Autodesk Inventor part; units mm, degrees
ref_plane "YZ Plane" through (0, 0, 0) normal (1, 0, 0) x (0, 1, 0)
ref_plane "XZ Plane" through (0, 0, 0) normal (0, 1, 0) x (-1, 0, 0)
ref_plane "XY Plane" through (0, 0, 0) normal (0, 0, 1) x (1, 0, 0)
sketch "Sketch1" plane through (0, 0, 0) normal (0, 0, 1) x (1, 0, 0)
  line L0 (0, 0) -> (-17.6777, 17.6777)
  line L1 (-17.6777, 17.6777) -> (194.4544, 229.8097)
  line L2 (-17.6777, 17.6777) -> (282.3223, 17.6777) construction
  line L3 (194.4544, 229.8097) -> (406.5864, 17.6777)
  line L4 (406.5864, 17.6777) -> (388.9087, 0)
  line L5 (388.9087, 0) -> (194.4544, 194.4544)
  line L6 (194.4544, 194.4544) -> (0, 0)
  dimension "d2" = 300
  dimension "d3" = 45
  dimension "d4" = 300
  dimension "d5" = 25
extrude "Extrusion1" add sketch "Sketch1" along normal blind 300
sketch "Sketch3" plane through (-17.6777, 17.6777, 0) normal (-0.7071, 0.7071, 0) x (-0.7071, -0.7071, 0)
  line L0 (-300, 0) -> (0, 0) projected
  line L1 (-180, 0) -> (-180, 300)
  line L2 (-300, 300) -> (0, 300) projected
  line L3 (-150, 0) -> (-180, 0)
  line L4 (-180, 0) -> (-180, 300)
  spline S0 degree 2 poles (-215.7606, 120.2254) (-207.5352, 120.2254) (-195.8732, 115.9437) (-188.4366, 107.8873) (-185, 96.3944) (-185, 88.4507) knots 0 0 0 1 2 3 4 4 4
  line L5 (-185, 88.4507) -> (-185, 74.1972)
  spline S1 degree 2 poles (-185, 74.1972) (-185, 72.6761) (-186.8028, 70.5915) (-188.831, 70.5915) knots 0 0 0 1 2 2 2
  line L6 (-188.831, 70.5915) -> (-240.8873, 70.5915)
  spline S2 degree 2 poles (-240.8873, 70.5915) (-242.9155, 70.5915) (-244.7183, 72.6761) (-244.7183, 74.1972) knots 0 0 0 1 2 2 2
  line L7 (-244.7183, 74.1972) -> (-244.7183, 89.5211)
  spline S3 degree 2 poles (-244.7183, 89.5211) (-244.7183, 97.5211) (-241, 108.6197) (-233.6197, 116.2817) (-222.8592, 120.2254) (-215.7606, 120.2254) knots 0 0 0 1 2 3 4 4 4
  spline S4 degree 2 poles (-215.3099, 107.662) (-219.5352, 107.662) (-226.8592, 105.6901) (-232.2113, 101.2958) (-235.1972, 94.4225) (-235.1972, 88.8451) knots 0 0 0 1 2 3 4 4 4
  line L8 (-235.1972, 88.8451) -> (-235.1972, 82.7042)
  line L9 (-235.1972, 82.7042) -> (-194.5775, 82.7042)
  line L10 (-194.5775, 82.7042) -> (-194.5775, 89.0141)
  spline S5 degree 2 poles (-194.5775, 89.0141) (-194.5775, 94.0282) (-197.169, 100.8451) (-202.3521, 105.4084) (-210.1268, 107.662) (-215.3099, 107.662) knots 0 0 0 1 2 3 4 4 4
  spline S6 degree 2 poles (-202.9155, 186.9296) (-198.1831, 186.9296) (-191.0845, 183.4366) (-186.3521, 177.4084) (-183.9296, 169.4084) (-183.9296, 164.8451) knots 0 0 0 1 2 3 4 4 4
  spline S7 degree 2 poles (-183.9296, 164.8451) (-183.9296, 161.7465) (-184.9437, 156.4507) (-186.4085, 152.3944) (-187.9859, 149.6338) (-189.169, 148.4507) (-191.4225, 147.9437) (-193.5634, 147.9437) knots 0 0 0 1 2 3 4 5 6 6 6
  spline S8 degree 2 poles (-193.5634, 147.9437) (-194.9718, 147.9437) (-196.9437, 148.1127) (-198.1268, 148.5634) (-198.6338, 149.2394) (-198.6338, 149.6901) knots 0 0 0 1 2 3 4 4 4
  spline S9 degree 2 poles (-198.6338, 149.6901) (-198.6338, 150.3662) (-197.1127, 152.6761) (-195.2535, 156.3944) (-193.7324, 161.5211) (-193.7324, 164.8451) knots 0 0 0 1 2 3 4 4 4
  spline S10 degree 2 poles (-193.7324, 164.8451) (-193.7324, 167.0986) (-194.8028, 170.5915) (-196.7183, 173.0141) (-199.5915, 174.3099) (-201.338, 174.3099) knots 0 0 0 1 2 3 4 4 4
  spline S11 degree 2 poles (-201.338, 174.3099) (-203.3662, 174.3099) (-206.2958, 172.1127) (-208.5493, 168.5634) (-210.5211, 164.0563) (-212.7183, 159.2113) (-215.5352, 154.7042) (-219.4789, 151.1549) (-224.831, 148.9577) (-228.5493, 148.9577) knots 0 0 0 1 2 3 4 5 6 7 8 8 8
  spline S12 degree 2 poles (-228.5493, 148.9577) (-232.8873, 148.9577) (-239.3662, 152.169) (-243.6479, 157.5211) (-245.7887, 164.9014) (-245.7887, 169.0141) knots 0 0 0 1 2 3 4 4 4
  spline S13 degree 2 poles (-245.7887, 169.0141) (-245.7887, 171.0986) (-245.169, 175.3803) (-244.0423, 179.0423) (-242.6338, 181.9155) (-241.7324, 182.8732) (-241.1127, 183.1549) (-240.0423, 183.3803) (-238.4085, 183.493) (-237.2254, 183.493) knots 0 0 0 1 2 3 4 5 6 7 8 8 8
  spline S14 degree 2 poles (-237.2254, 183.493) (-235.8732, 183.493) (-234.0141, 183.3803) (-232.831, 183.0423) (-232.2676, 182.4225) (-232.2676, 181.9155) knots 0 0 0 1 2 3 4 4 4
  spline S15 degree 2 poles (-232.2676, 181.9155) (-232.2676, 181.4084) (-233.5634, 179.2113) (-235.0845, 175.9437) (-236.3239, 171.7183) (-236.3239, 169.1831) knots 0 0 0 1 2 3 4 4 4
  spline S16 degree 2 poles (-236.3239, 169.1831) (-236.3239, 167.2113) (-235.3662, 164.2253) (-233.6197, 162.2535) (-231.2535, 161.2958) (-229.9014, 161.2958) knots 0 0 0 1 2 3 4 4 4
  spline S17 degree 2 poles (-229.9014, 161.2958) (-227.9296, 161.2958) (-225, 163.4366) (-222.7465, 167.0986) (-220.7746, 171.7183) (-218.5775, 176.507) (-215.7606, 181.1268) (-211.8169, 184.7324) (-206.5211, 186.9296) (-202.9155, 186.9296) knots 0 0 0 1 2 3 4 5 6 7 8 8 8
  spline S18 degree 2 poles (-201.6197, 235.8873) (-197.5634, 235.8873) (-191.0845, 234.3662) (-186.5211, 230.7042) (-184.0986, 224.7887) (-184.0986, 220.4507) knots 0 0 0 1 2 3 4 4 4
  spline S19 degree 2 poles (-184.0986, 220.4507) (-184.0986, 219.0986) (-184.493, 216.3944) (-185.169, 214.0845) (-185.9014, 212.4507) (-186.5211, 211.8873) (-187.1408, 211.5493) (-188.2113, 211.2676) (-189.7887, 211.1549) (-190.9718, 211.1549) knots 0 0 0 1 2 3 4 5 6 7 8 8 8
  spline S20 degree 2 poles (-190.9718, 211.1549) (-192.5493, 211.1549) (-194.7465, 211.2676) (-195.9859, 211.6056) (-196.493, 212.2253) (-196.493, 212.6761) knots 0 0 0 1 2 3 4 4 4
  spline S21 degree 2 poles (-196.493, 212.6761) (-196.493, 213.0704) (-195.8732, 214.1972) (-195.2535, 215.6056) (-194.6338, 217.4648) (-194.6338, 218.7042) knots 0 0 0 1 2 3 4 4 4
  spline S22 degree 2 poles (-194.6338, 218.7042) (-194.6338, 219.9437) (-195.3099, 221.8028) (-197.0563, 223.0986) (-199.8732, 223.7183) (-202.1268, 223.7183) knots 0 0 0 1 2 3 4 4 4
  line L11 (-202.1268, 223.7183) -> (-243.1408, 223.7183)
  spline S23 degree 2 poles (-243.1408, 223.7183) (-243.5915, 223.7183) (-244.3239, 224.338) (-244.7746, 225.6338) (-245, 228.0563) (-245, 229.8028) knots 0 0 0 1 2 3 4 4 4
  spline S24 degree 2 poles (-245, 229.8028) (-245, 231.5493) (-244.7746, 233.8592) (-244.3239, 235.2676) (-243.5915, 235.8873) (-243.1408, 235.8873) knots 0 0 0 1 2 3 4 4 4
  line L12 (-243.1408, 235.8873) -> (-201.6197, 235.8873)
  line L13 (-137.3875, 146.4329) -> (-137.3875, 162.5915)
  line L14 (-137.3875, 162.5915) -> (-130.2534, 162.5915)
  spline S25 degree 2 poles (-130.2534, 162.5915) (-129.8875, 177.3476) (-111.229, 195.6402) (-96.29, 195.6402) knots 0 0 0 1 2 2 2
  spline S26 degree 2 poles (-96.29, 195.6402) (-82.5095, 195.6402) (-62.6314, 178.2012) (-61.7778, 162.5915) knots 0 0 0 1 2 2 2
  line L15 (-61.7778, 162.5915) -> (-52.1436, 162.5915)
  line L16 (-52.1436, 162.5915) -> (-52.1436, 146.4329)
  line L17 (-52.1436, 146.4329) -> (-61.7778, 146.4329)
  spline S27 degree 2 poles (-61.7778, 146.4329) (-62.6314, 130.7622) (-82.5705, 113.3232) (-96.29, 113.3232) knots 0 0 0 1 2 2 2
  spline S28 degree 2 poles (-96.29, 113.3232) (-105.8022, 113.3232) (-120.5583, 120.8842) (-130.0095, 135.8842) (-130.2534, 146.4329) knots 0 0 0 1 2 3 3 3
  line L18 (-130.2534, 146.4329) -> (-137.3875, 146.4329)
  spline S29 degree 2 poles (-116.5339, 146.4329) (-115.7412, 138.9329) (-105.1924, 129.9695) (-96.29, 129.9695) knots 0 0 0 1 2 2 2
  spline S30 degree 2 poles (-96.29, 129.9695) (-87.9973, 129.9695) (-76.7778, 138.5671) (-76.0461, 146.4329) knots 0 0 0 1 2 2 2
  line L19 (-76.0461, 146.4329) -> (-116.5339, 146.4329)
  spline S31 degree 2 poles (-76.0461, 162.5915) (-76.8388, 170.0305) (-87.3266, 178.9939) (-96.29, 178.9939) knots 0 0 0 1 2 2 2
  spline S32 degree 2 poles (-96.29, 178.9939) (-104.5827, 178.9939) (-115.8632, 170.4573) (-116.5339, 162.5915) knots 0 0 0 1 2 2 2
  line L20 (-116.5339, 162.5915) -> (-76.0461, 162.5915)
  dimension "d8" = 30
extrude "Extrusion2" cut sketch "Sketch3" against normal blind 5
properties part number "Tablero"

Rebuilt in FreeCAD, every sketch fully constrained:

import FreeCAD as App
import Part
import Sketcher
from FreeCAD import Vector
Q = App.Units.Quantity

doc = App.newDocument("Part")
params = doc.addObject("Spreadsheet::Sheet", "Params")
for row, (alias, value) in enumerate([
    ("sketch1_length", "25 mm"),
    ("sketch1_length2", "300 mm"),
    ("pad1_length", "300 mm"),
    ("sketch2_height", "6.31 mm"),
    ("pocket1_length", "5 mm"),
], start=1):
    params.set(f"A{row}", alias)
    params.set(f"B{row}", "=" + value)
    params.setAlias(f"B{row}", alias)

body = doc.addObject("PartDesign::Body", "Body")

# Sketch on XY plane
sketch1 = body.newObject("Sketcher::SketchObject", "Sketch")
sketch1.AttachmentSupport = (doc.getObject("XY_Plane"), [""])
sketch1.MapMode = "FlatFace"
sketch1.addGeometry(Part.LineSegment(Vector(-18, 18, 0), Vector(0, 0, 0)), False)
sketch1.addGeometry(Part.LineSegment(Vector(0, 0, 0), Vector(194, 194, 0)), False)
sketch1.addGeometry(Part.LineSegment(Vector(194, 194, 0), Vector(389, 0, 0)), False)
sketch1.addGeometry(Part.LineSegment(Vector(389, 0, 0), Vector(407, 18, 0)), False)
sketch1.addGeometry(Part.LineSegment(Vector(407, 18, 0), Vector(194, 230, 0)), False)
sketch1.addGeometry(Part.LineSegment(Vector(194, 230, 0), Vector(-18, 18, 0)), False)
sketch1.addConstraint(Sketcher.Constraint("Coincident", 0, 2, 1, 1))
sketch1.addConstraint(Sketcher.Constraint("Coincident", 1, 2, 2, 1))
sketch1.addConstraint(Sketcher.Constraint("Coincident", 2, 2, 3, 1))
sketch1.addConstraint(Sketcher.Constraint("Coincident", 3, 2, 4, 1))
sketch1.addConstraint(Sketcher.Constraint("Coincident", 4, 2, 5, 1))
sketch1.addConstraint(Sketcher.Constraint("Coincident", 5, 2, 0, 1))
sketch1.addConstraint(Sketcher.Constraint("Coincident", 0, 2, -1, 1))
sketch1.addConstraint(Sketcher.Constraint("PointOnObject", 2, 2, -1))
sketch1.addConstraint(Sketcher.Constraint("Perpendicular", 0, 1))
sketch1.addConstraint(Sketcher.Constraint("Perpendicular", 1, 2))
sketch1.addConstraint(Sketcher.Constraint("Perpendicular", 2, 3))
sketch1.addConstraint(Sketcher.Constraint("Perpendicular", 3, 4))
sketch1.addConstraint(Sketcher.Constraint("Perpendicular", 4, 5))
sketch1.addConstraint(Sketcher.Constraint("Horizontal", 3, 2, 5, 2))
sketch1.addConstraint(Sketcher.Constraint("Vertical", 1, 2, 4, 2))
sketch1.addConstraint(Sketcher.Constraint("Distance", 0, Q("25 mm")))
sketch1.addConstraint(Sketcher.Constraint("Distance", 4, Q("300 mm")))
sketch1.setExpression("Constraints[15]", "Params.sketch1_length")
sketch1.setExpression("Constraints[16]", "Params.sketch1_length2")
pad1 = body.newObject("PartDesign::Pad", "Pad")
pad1.Profile = sketch1
pad1.setExpression("Length", "Params.pad1_length")

# Sketch on an angled plane
sketch2 = body.newObject("Sketcher::SketchObject", "Sketch001")
sketch2.Placement = App.Placement(Vector(-17.6777, 17.6777, 0), App.Rotation(Vector(-0.707106781, -0.707106781, 0), Vector(0, 0, 0.999999999), Vector(-0.707106781, 0.707106781, 0), "ZXY"))
sketch2.addGeometry(Part.BSplineCurve([Vector(-215.7606, 120.2254, 0), Vector(-207.5352, 120.2254, 0), Vector(-195.8732, 115.9437, 0), Vector(-188.4366, 107.8873, 0), Vector(-185, 96.3944, 0), Vector(-185, 88.4507, 0)], [3, 1, 1, 1, 3], [0, 1, 2, 3, 4], False, 2, [1, 1, 1, 1, 1, 1], False), False)
sketch2.addGeometry(Part.BSplineCurve([Vector(-244.7183, 89.5211, 0), Vector(-244.7183, 97.5211, 0), Vector(-241, 108.6197, 0), Vector(-233.6197, 116.2817, 0), Vector(-222.8592, 120.2254, 0), Vector(-215.7606, 120.2254, 0)], [3, 1, 1, 1, 3], [0, 1, 2, 3, 4], False, 2, [1, 1, 1, 1, 1, 1], False), False)
sketch2.addGeometry(Part.LineSegment(Vector(-244.7183, 89.5211, 0), Vector(-244.7183, 74.1972, 0)), False)
sketch2.addGeometry(Part.BSplineCurve([Vector(-240.8873, 70.5915, 0), Vector(-242.9155, 70.5915, 0), Vector(-244.7183, 72.6761, 0), Vector(-244.7183, 74.1972, 0)], [3, 1, 3], [0, 1, 2], False, 2, [1, 1, 1, 1], False), False)
sketch2.addGeometry(Part.LineSegment(Vector(-240.8873, 70.5915, 0), Vector(-188.831, 70.5915, 0)), False)
sketch2.addGeometry(Part.BSplineCurve([Vector(-185, 74.1972, 0), Vector(-185, 72.6761, 0), Vector(-186.8028, 70.5915, 0), Vector(-188.831, 70.5915, 0)], [3, 1, 3], [0, 1, 2], False, 2, [1, 1, 1, 1], False), False)
sketch2.addGeometry(Part.LineSegment(Vector(-185, 74.1972, 0), Vector(-185, 88.4507, 0)), False)
sketch2.addGeometry(Part.BSplineCurve([Vector(-215.3099, 107.662, 0), Vector(-219.5352, 107.662, 0), Vector(-226.8592, 105.6901, 0), Vector(-232.2113, 101.2958, 0), Vector(-235.1972, 94.4225, 0), Vector(-235.1972, 88.8451, 0)], [3, 1, 1, 1, 3], [0, 1, 2, 3, 4], False, 2, [1, 1, 1, 1, 1, 1], False), False)
sketch2.addGeometry(Part.BSplineCurve([Vector(-194.5775, 89.0141, 0), Vector(-194.5775, 94.0282, 0), Vector(-197.169, 100.8451, 0), Vector(-202.3521, 105.4084, 0), Vector(-210.1268, 107.662, 0), Vector(-215.3099, 107.662, 0)], [3, 1, 1, 1, 3], [0, 1, 2, 3, 4], False, 2, [1, 1, 1, 1, 1, 1], False), False)
sketch2.addGeometry(Part.LineSegment(Vector(-194.5775, 89.0141, 0), Vector(-194.5775, 82.7042, 0)), False)
sketch2.addGeometry(Part.LineSegment(Vector(-194.5775, 82.7042, 0), Vector(-235.1972, 82.7042, 0)), False)
sketch2.addGeometry(Part.LineSegment(Vector(-235.1972, 82.7042, 0), Vector(-235.1972, 88.8451, 0)), False)
sketch2.addGeometry(Part.BSplineCurve([Vector(-202.9155, 186.9296, 0), Vector(-198.1831, 186.9296, 0), Vector(-191.0845, 183.4366, 0), Vector(-186.3521, 177.4084, 0), Vector(-183.9296, 169.4084, 0), Vector(-183.9296, 164.8451, 0)], [3, 1, 1, 1, 3], [0, 1, 2, 3, 4], False, 2, [1, 1, 1, 1, 1, 1], False), False)
sketch2.addGeometry(Part.BSplineCurve([Vector(-229.9014, 161.2958, 0), Vector(-227.9296, 161.2958, 0), Vector(-225, 163.4366, 0), Vector(-222.7465, 167.0986, 0), Vector(-220.7746, 171.7183, 0), Vector(-218.5775, 176.507, 0), Vector(-215.7606, 181.1268, 0), Vector(-211.8169, 184.7324, 0), Vector(-206.5211, 186.9296, 0), Vector(-202.9155, 186.9296, 0)], [3, 1, 1, 1, 1, 1, 1, 1, 3], [0, 1, 2, 3, 4, 5, 6, 7, 8], False, 2, [1, 1, 1, 1, 1, 1, 1, 1, 1, 1], False), False)
sketch2.addGeometry(Part.BSplineCurve([Vector(-236.3239, 169.1831, 0), Vector(-236.3239, 167.2113, 0), Vector(-235.3662, 164.2253, 0), Vector(-233.6197, 162.2535, 0), Vector(-231.2535, 161.2958, 0), Vector(-229.9014, 161.2958, 0)], [3, 1, 1, 1, 3], [0, 1, 2, 3, 4], False, 2, [1, 1, 1, 1, 1, 1], False), False)
sketch2.addGeometry(Part.BSplineCurve([Vector(-232.2676, 181.9155, 0), Vector(-232.2676, 181.4084, 0), Vector(-233.5634, 179.2113, 0), Vector(-235.0845, 175.9437, 0), Vector(-236.3239, 171.7183, 0), Vector(-236.3239, 169.1831, 0)], [3, 1, 1, 1, 3], [0, 1, 2, 3, 4], False, 2, [1, 1, 1, 1, 1, 1], False), False)
sketch2.addGeometry(Part.BSplineCurve([Vector(-237.2254, 183.493, 0), Vector(-235.8732, 183.493, 0), Vector(-234.0141, 183.3803, 0), Vector(-232.831, 183.0423, 0), Vector(-232.2676, 182.4225, 0), Vector(-232.2676, 181.9155, 0)], [3, 1, 1, 1, 3], [0, 1, 2, 3, 4], False, 2, [1, 1, 1, 1, 1, 1], False), False)
sketch2.addGeometry(Part.BSplineCurve([Vector(-245.7887, 169.0141, 0), Vector(-245.7887, 171.0986, 0), Vector(-245.169, 175.3803, 0), Vector(-244.0423, 179.0423, 0), Vector(-242.6338, 181.9155, 0), Vector(-241.7324, 182.8732, 0), Vector(-241.1127, 183.1549, 0), Vector(-240.0423, 183.3803, 0), Vector(-238.4085, 183.493, 0), Vector(-237.2254, 183.493, 0)], [3, 1, 1, 1, 1, 1, 1, 1, 3], [0, 1, 2, 3, 4, 5, 6, 7, 8], False, 2, [1, 1, 1, 1, 1, 1, 1, 1, 1, 1], False), False)
sketch2.addGeometry(Part.BSplineCurve([Vector(-228.5493, 148.9577, 0), Vector(-232.8873, 148.9577, 0), Vector(-239.3662, 152.169, 0), Vector(-243.6479, 157.5211, 0), Vector(-245.7887, 164.9014, 0), Vector(-245.7887, 169.0141, 0)], [3, 1, 1, 1, 3], [0, 1, 2, 3, 4], False, 2, [1, 1, 1, 1, 1, 1], False), False)
sketch2.addGeometry(Part.BSplineCurve([Vector(-201.338, 174.3099, 0), Vector(-203.3662, 174.3099, 0), Vector(-206.2958, 172.1127, 0), Vector(-208.5493, 168.5634, 0), Vector(-210.5211, 164.0563, 0), Vector(-212.7183, 159.2113, 0), Vector(-215.5352, 154.7042, 0), Vector(-219.4789, 151.1549, 0), Vector(-224.831, 148.9577, 0), Vector(-228.5493, 148.9577, 0)], [3, 1, 1, 1, 1, 1, 1, 1, 3], [0, 1, 2, 3, 4, 5, 6, 7, 8], False, 2, [1, 1, 1, 1, 1, 1, 1, 1, 1, 1], False), False)
sketch2.addGeometry(Part.BSplineCurve([Vector(-193.7324, 164.8451, 0), Vector(-193.7324, 167.0986, 0), Vector(-194.8028, 170.5915, 0), Vector(-196.7183, 173.0141, 0), Vector(-199.5915, 174.3099, 0), Vector(-201.338, 174.3099, 0)], [3, 1, 1, 1, 3], [0, 1, 2, 3, 4], False, 2, [1, 1, 1, 1, 1, 1], False), False)
sketch2.addGeometry(Part.BSplineCurve([Vector(-198.6338, 149.6901, 0), Vector(-198.6338, 150.3662, 0), Vector(-197.1127, 152.6761, 0), Vector(-195.2535, 156.3944, 0), Vector(-193.7324, 161.5211, 0), Vector(-193.7324, 164.8451, 0)], [3, 1, 1, 1, 3], [0, 1, 2, 3, 4], False, 2, [1, 1, 1, 1, 1, 1], False), False)
sketch2.addGeometry(Part.BSplineCurve([Vector(-193.5634, 147.9437, 0), Vector(-194.9718, 147.9437, 0), Vector(-196.9437, 148.1127, 0), Vector(-198.1268, 148.5634, 0), Vector(-198.6338, 149.2394, 0), Vector(-198.6338, 149.6901, 0)], [3, 1, 1, 1, 3], [0, 1, 2, 3, 4], False, 2, [1, 1, 1, 1, 1, 1], False), False)
sketch2.addGeometry(Part.BSplineCurve([Vector(-183.9296, 164.8451, 0), Vector(-183.9296, 161.7465, 0), Vector(-184.9437, 156.4507, 0), Vector(-186.4085, 152.3944, 0), Vector(-187.9859, 149.6338, 0), Vector(-189.169, 148.4507, 0), Vector(-191.4225, 147.9437, 0), Vector(-193.5634, 147.9437, 0)], [3, 1, 1, 1, 1, 1, 3], [0, 1, 2, 3, 4, 5, 6], False, 2, [1, 1, 1, 1, 1, 1, 1, 1], False), False)
sketch2.addGeometry(Part.BSplineCurve([Vector(-201.6197, 235.8873, 0), Vector(-197.5634, 235.8873, 0), Vector(-191.0845, 234.3662, 0), Vector(-186.5211, 230.7042, 0), Vector(-184.0986, 224.7887, 0), Vector(-184.0986, 220.4507, 0)], [3, 1, 1, 1, 3], [0, 1, 2, 3, 4], False, 2, [1, 1, 1, 1, 1, 1], False), False)
sketch2.addGeometry(Part.LineSegment(Vector(-201.6197, 235.8873, 0), Vector(-243.1408, 235.8873, 0)), False)
sketch2.addGeometry(Part.BSplineCurve([Vector(-245, 229.8028, 0), Vector(-245, 231.5493, 0), Vector(-244.7746, 233.8592, 0), Vector(-244.3239, 235.2676, 0), Vector(-243.5915, 235.8873, 0), Vector(-243.1408, 235.8873, 0)], [3, 1, 1, 1, 3], [0, 1, 2, 3, 4], False, 2, [1, 1, 1, 1, 1, 1], False), False)
sketch2.addGeometry(Part.BSplineCurve([Vector(-243.1408, 223.7183, 0), Vector(-243.5915, 223.7183, 0), Vector(-244.3239, 224.338, 0), Vector(-244.7746, 225.6338, 0), Vector(-245, 228.0563, 0), Vector(-245, 229.8028, 0)], [3, 1, 1, 1, 3], [0, 1, 2, 3, 4], False, 2, [1, 1, 1, 1, 1, 1], False), False)
sketch2.addGeometry(Part.LineSegment(Vector(-243.1408, 223.7183, 0), Vector(-202.1268, 223.7183, 0)), False)
sketch2.addGeometry(Part.BSplineCurve([Vector(-194.6338, 218.7042, 0), Vector(-194.6338, 219.9437, 0), Vector(-195.3099, 221.8028, 0), Vector(-197.0563, 223.0986, 0), Vector(-199.8732, 223.7183, 0), Vector(-202.1268, 223.7183, 0)], [3, 1, 1, 1, 3], [0, 1, 2, 3, 4], False, 2, [1, 1, 1, 1, 1, 1], False), False)
sketch2.addGeometry(Part.BSplineCurve([Vector(-196.493, 212.6761, 0), Vector(-196.493, 213.0704, 0), Vector(-195.8732, 214.1972, 0), Vector(-195.2535, 215.6056, 0), Vector(-194.6338, 217.4648, 0), Vector(-194.6338, 218.7042, 0)], [3, 1, 1, 1, 3], [0, 1, 2, 3, 4], False, 2, [1, 1, 1, 1, 1, 1], False), False)
sketch2.addGeometry(Part.BSplineCurve([Vector(-190.9718, 211.1549, 0), Vector(-192.5493, 211.1549, 0), Vector(-194.7465, 211.2676, 0), Vector(-195.9859, 211.6056, 0), Vector(-196.493, 212.2253, 0), Vector(-196.493, 212.6761, 0)], [3, 1, 1, 1, 3], [0, 1, 2, 3, 4], False, 2, [1, 1, 1, 1, 1, 1], False), False)
sketch2.addGeometry(Part.BSplineCurve([Vector(-184.0986, 220.4507, 0), Vector(-184.0986, 219.0986, 0), Vector(-184.493, 216.3944, 0), Vector(-185.169, 214.0845, 0), Vector(-185.9014, 212.4507, 0), Vector(-186.5211, 211.8873, 0), Vector(-187.1408, 211.5493, 0), Vector(-188.2113, 211.2676, 0), Vector(-189.7887, 211.1549, 0), Vector(-190.9718, 211.1549, 0)], [3, 1, 1, 1, 1, 1, 1, 1, 3], [0, 1, 2, 3, 4, 5, 6, 7, 8], False, 2, [1, 1, 1, 1, 1, 1, 1, 1, 1, 1], False), False)
sketch2.addGeometry(Part.LineSegment(Vector(-137.3875, 162.5915, 0), Vector(-137.3875, 146.4329, 0)), False)
sketch2.addGeometry(Part.LineSegment(Vector(-137.3875, 146.4329, 0), Vector(-130.2534, 146.4329, 0)), False)
sketch2.addGeometry(Part.BSplineCurve([Vector(-96.29, 113.3232, 0), Vector(-105.8022, 113.3232, 0), Vector(-120.5583, 120.8842, 0), Vector(-130.0095, 135.8842, 0), Vector(-130.2534, 146.4329, 0)], [3, 1, 1, 3], [0, 1, 2, 3], False, 2, [1, 1, 1, 1, 1], False), False)
sketch2.addGeometry(Part.BSplineCurve([Vector(-61.7778, 146.4329, 0), Vector(-62.6314, 130.7622, 0), Vector(-82.5705, 113.3232, 0), Vector(-96.29, 113.3232, 0)], [3, 1, 3], [0, 1, 2], False, 2, [1, 1, 1, 1], False), False)
sketch2.addGeometry(Part.LineSegment(Vector(-61.7778, 146.4329, 0), Vector(-52.1436, 146.4329, 0)), False)
sketch2.addGeometry(Part.LineSegment(Vector(-52.1436, 146.4329, 0), Vector(-52.1436, 162.5915, 0)), False)
sketch2.addGeometry(Part.LineSegment(Vector(-52.1436, 162.5915, 0), Vector(-61.7778, 162.5915, 0)), False)
sketch2.addGeometry(Part.BSplineCurve([Vector(-96.29, 195.6402, 0), Vector(-82.5095, 195.6402, 0), Vector(-62.6314, 178.2012, 0), Vector(-61.7778, 162.5915, 0)], [3, 1, 3], [0, 1, 2], False, 2, [1, 1, 1, 1], False), False)
sketch2.addGeometry(Part.BSplineCurve([Vector(-130.2534, 162.5915, 0), Vector(-129.8875, 177.3476, 0), Vector(-111.229, 195.6402, 0), Vector(-96.29, 195.6402, 0)], [3, 1, 3], [0, 1, 2], False, 2, [1, 1, 1, 1], False), False)
sketch2.addGeometry(Part.LineSegment(Vector(-130.2534, 162.5915, 0), Vector(-137.3875, 162.5915, 0)), False)
sketch2.addGeometry(Part.BSplineCurve([Vector(-116.5339, 146.4329, 0), Vector(-115.7412, 138.9329, 0), Vector(-105.1924, 129.9695, 0), Vector(-96.29, 129.9695, 0)], [3, 1, 3], [0, 1, 2], False, 2, [1, 1, 1, 1], False), False)
sketch2.addGeometry(Part.LineSegment(Vector(-116.5339, 146.4329, 0), Vector(-76.0461, 146.4329, 0)), False)
sketch2.addGeometry(Part.BSplineCurve([Vector(-96.29, 129.9695, 0), Vector(-87.9973, 129.9695, 0), Vector(-76.7778, 138.5671, 0), Vector(-76.0461, 146.4329, 0)], [3, 1, 3], [0, 1, 2], False, 2, [1, 1, 1, 1], False), False)
sketch2.addGeometry(Part.BSplineCurve([Vector(-76.0461, 162.5915, 0), Vector(-76.8388, 170.0305, 0), Vector(-87.3266, 178.9939, 0), Vector(-96.29, 178.9939, 0)], [3, 1, 3], [0, 1, 2], False, 2, [1, 1, 1, 1], False), False)
sketch2.addGeometry(Part.LineSegment(Vector(-76.0461, 162.5915, 0), Vector(-116.5339, 162.5915, 0)), False)
sketch2.addGeometry(Part.BSplineCurve([Vector(-96.29, 178.9939, 0), Vector(-104.5827, 178.9939, 0), Vector(-115.8632, 170.4573, 0), Vector(-116.5339, 162.5915, 0)], [3, 1, 3], [0, 1, 2], False, 2, [1, 1, 1, 1], False), False)
sketch2.addConstraint(Sketcher.Constraint("Block", 0))
sketch2.addConstraint(Sketcher.Constraint("Block", 1))
sketch2.addConstraint(Sketcher.Constraint("Block", 3))
sketch2.addConstraint(Sketcher.Constraint("Block", 5))
sketch2.addConstraint(Sketcher.Constraint("Block", 7))
sketch2.addConstraint(Sketcher.Constraint("Block", 8))
sketch2.addConstraint(Sketcher.Constraint("Block", 12))
sketch2.addConstraint(Sketcher.Constraint("Block", 13))
sketch2.addConstraint(Sketcher.Constraint("Block", 14))
sketch2.addConstraint(Sketcher.Constraint("Block", 15))
sketch2.addConstraint(Sketcher.Constraint("Block", 16))
sketch2.addConstraint(Sketcher.Constraint("Block", 17))
sketch2.addConstraint(Sketcher.Constraint("Block", 18))
sketch2.addConstraint(Sketcher.Constraint("Block", 19))
sketch2.addConstraint(Sketcher.Constraint("Block", 20))
sketch2.addConstraint(Sketcher.Constraint("Block", 21))
sketch2.addConstraint(Sketcher.Constraint("Block", 22))
sketch2.addConstraint(Sketcher.Constraint("Block", 23))
sketch2.addConstraint(Sketcher.Constraint("Block", 24))
sketch2.addConstraint(Sketcher.Constraint("Block", 26))
sketch2.addConstraint(Sketcher.Constraint("Block", 27))
sketch2.addConstraint(Sketcher.Constraint("Block", 29))
sketch2.addConstraint(Sketcher.Constraint("Block", 30))
sketch2.addConstraint(Sketcher.Constraint("Block", 31))
sketch2.addConstraint(Sketcher.Constraint("Block", 32))
sketch2.addConstraint(Sketcher.Constraint("Block", 35))
sketch2.addConstraint(Sketcher.Constraint("Block", 36))
sketch2.addConstraint(Sketcher.Constraint("Block", 40))
sketch2.addConstraint(Sketcher.Constraint("Block", 41))
sketch2.addConstraint(Sketcher.Constraint("Block", 43))
sketch2.addConstraint(Sketcher.Constraint("Block", 45))
sketch2.addConstraint(Sketcher.Constraint("Block", 46))
sketch2.addConstraint(Sketcher.Constraint("Block", 48))
sketch2.addConstraint(Sketcher.Constraint("Coincident", 1, 1, 2, 1))
sketch2.addConstraint(Sketcher.Constraint("Coincident", 2, 2, 3, 2))
sketch2.addConstraint(Sketcher.Constraint("Coincident", 3, 1, 4, 1))
sketch2.addConstraint(Sketcher.Constraint("Coincident", 4, 2, 5, 2))
sketch2.addConstraint(Sketcher.Constraint("Coincident", 5, 1, 6, 1))
sketch2.addConstraint(Sketcher.Constraint("Coincident", 6, 2, 0, 2))
sketch2.addConstraint(Sketcher.Constraint("Coincident", 8, 1, 9, 1))
sketch2.addConstraint(Sketcher.Constraint("Coincident", 9, 2, 10, 1))
sketch2.addConstraint(Sketcher.Constraint("Coincident", 10, 2, 11, 1))
sketch2.addConstraint(Sketcher.Constraint("Coincident", 11, 2, 7, 2))
sketch2.addConstraint(Sketcher.Constraint("Coincident", 24, 1, 25, 1))
sketch2.addConstraint(Sketcher.Constraint("Coincident", 25, 2, 26, 2))
sketch2.addConstraint(Sketcher.Constraint("Coincident", 27, 1, 28, 1))
sketch2.addConstraint(Sketcher.Constraint("Coincident", 28, 2, 29, 2))
sketch2.addConstraint(Sketcher.Constraint("Coincident", 33, 2, 34, 1))
sketch2.addConstraint(Sketcher.Constraint("Coincident", 34, 2, 35, 2))
sketch2.addConstraint(Sketcher.Constraint("Coincident", 36, 1, 37, 1))
sketch2.addConstraint(Sketcher.Constraint("Coincident", 37, 2, 38, 1))
sketch2.addConstraint(Sketcher.Constraint("Coincident", 38, 2, 39, 1))
sketch2.addConstraint(Sketcher.Constraint("Coincident", 39, 2, 40, 2))
sketch2.addConstraint(Sketcher.Constraint("Coincident", 41, 1, 42, 1))
sketch2.addConstraint(Sketcher.Constraint("Coincident", 42, 2, 33, 1))
sketch2.addConstraint(Sketcher.Constraint("Coincident", 43, 1, 44, 1))
sketch2.addConstraint(Sketcher.Constraint("Coincident", 44, 2, 45, 2))
sketch2.addConstraint(Sketcher.Constraint("Coincident", 46, 1, 47, 1))
sketch2.addConstraint(Sketcher.Constraint("Coincident", 47, 2, 48, 2))
sketch2.addConstraint(Sketcher.Constraint("Vertical", 9))
sketch2.addConstraint(Sketcher.Constraint("Horizontal", 10))
sketch2.addConstraint(Sketcher.Constraint("Vertical", 11))
sketch2.addConstraint(Sketcher.Constraint("Vertical", 33))
sketch2.addConstraint(Sketcher.Constraint("Horizontal", 34))
sketch2.addConstraint(Sketcher.Constraint("Horizontal", 37))
sketch2.addConstraint(Sketcher.Constraint("Vertical", 38))
sketch2.addConstraint(Sketcher.Constraint("Horizontal", 39))
sketch2.addConstraint(Sketcher.Constraint("Horizontal", 42))
sketch2.addConstraint(Sketcher.Constraint("DistanceY", 9, 2, 9, 1, Q("6.31 mm")))
sketch2.addConstraint(Sketcher.Constraint("DistanceX", 34, 1, 34, 2, Q("7.134 mm")))
sketch2.addConstraint(Sketcher.Constraint("DistanceX", 37, 1, 37, 2, Q("9.6342 mm")))
sketch2.setExpression("Constraints[68]", "Params.sketch2_height")
pocket1 = body.newObject("PartDesign::Pocket", "Pocket")
pocket1.Profile = sketch2
pocket1.setExpression("Length", "Params.pocket1_length")

doc.recompute()
